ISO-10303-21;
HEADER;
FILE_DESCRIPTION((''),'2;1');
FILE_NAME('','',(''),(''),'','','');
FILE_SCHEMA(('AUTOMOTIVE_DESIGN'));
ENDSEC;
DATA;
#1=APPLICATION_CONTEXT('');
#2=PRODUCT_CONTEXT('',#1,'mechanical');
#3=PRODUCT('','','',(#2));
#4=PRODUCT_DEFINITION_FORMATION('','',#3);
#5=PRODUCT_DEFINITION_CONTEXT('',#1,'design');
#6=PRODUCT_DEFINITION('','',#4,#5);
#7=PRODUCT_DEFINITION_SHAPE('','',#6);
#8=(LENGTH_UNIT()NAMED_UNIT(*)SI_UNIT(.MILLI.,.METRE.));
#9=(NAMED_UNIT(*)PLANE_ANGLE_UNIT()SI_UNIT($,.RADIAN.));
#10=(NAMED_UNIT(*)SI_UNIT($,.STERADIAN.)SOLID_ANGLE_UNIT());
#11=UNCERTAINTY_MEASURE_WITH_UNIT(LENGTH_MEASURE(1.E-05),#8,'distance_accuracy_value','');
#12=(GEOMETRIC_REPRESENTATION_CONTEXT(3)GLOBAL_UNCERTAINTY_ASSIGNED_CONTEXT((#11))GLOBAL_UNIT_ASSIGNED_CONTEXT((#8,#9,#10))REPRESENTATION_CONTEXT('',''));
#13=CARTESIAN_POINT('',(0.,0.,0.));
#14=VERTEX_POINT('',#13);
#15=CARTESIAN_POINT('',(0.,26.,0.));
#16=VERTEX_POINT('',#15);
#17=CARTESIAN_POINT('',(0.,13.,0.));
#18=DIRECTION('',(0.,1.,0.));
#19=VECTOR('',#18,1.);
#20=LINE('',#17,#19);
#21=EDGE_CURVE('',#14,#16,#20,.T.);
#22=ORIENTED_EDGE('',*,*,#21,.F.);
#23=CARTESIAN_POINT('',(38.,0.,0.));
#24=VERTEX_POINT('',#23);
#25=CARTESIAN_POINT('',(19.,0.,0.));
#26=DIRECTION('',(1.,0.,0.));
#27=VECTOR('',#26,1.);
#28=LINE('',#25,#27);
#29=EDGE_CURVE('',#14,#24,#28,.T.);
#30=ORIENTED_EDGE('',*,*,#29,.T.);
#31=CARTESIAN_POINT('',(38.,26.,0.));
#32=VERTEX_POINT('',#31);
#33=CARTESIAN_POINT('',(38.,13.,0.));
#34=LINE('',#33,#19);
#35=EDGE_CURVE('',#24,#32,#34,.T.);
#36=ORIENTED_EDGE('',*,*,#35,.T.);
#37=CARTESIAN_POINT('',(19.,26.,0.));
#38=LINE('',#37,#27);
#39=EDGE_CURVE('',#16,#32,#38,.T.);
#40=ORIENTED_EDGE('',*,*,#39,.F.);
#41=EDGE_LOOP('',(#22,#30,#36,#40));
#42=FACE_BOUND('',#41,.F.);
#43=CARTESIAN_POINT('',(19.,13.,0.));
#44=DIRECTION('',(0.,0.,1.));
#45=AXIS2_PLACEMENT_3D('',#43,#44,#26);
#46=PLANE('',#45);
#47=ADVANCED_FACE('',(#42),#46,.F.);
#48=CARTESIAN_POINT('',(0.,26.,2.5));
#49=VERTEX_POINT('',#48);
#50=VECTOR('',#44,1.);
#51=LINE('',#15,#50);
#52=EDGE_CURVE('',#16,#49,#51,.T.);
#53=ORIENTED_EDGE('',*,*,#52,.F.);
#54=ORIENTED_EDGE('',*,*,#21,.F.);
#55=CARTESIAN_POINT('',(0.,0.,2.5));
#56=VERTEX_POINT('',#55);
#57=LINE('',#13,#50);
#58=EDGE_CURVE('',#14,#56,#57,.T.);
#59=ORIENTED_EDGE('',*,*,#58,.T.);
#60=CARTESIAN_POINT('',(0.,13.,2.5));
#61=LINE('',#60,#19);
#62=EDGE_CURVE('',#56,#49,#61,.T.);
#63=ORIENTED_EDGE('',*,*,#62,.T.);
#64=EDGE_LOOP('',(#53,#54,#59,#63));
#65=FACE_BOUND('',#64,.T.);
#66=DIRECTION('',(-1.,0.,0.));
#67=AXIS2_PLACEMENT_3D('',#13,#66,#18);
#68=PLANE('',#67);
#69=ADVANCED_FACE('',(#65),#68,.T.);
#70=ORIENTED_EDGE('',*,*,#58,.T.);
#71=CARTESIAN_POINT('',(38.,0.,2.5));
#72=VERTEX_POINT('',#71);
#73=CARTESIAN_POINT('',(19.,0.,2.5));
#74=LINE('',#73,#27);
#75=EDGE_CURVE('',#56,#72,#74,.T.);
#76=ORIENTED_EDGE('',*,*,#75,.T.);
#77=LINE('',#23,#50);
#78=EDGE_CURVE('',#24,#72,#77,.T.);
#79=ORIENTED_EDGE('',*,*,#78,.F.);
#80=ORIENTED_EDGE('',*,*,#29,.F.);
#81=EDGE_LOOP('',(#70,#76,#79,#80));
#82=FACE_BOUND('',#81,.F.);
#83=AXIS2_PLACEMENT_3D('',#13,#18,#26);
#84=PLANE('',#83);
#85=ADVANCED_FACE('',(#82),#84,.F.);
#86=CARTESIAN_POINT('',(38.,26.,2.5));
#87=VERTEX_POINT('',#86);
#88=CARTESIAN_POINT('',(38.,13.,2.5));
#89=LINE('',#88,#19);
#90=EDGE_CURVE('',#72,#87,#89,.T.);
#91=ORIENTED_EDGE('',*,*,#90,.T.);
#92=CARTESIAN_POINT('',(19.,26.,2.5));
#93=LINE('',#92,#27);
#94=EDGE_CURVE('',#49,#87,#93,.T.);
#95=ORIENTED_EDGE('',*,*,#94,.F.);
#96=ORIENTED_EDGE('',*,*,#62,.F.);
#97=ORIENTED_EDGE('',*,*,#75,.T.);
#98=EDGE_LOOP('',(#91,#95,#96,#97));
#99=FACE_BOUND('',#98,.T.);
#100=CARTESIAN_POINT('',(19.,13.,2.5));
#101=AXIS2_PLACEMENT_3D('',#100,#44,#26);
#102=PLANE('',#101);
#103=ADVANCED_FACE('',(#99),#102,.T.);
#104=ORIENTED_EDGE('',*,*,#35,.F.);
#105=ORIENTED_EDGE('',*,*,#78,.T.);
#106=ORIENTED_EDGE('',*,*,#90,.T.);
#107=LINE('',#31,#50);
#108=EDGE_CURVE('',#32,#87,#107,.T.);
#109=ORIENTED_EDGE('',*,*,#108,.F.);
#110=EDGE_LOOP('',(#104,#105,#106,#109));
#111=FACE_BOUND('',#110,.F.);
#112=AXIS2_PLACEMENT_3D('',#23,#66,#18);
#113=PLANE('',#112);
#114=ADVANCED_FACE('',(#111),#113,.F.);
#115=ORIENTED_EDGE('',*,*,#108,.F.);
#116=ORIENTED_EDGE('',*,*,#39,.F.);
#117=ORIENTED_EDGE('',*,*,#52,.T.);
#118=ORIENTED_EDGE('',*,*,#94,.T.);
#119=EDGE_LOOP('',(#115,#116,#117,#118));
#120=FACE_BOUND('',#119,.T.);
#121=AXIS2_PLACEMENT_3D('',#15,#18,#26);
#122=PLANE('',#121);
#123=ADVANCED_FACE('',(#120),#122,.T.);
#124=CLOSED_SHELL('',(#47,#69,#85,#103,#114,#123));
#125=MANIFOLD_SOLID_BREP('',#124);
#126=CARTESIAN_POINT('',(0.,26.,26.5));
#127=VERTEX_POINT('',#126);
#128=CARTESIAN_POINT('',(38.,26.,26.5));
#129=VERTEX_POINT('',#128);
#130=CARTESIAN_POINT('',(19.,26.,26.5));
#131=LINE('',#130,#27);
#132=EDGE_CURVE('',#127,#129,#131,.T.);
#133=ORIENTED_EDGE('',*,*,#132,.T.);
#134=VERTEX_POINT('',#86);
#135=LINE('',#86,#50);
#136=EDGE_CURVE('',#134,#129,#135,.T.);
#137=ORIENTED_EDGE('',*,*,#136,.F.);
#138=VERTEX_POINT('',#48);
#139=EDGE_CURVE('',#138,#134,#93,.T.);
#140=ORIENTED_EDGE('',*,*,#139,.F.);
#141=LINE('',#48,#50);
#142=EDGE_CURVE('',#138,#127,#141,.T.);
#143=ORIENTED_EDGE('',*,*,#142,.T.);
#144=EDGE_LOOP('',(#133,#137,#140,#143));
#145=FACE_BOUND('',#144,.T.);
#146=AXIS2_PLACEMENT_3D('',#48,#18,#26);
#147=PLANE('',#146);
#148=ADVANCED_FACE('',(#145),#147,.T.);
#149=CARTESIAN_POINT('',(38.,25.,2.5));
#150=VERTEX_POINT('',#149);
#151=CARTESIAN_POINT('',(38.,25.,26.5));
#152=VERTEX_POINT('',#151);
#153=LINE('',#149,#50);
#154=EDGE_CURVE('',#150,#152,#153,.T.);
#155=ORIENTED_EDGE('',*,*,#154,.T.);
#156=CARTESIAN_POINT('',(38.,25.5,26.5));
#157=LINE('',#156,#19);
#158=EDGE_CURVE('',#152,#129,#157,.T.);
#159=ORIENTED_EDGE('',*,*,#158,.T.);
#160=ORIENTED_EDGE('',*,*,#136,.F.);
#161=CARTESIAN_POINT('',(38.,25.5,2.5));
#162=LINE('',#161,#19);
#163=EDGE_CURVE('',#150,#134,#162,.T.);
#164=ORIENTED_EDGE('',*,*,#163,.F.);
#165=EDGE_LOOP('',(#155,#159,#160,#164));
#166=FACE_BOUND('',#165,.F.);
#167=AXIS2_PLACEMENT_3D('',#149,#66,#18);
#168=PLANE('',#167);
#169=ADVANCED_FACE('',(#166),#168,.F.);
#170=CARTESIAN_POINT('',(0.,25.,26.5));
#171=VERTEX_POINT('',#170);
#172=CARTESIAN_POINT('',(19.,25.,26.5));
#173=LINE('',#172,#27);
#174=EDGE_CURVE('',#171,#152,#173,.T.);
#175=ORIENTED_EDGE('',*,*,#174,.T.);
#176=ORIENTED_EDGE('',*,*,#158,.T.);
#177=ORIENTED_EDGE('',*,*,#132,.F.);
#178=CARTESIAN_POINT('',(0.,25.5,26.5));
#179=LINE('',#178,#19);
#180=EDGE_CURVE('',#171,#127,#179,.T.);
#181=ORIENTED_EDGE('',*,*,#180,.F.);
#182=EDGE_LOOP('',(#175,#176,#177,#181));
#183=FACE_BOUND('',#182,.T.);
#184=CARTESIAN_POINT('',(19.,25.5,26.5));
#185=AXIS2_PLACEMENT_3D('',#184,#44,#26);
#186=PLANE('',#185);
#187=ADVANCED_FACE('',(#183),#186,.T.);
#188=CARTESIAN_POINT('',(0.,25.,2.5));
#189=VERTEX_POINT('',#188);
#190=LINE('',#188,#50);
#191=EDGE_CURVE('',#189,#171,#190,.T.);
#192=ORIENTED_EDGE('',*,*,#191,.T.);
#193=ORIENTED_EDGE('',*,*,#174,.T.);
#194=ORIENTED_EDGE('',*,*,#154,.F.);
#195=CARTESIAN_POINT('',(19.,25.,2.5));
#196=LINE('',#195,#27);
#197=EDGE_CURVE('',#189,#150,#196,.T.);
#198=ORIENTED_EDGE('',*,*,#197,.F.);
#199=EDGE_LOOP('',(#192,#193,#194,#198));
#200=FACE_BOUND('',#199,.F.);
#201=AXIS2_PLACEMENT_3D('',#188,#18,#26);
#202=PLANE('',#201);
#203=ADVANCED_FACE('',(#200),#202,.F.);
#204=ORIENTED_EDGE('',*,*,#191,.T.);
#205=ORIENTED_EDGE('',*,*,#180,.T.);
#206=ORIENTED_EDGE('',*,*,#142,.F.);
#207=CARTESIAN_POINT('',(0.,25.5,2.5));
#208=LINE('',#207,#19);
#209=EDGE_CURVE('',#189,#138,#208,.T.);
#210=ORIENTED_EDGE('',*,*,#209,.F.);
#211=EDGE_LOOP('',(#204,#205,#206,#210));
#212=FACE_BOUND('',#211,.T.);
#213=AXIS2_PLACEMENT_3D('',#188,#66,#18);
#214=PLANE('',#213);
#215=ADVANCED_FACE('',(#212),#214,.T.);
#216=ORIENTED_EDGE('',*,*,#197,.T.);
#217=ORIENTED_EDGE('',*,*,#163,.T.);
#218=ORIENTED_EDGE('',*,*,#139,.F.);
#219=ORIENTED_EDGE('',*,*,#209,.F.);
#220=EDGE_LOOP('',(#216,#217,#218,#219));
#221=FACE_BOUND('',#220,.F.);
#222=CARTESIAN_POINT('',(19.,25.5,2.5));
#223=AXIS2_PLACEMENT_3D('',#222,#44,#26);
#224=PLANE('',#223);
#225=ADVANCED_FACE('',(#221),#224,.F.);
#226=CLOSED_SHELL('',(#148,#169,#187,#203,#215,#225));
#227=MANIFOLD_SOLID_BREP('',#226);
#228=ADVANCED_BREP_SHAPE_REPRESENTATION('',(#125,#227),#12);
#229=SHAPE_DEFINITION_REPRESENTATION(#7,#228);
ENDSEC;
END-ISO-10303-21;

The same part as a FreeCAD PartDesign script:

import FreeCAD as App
import Part
import Sketcher

V = App.Vector

doc = App.newDocument("Part")
body = doc.addObject("PartDesign::Body", "Body")

# Sketch on XY plane
sketch1 = doc.addObject("Sketcher::SketchObject", "Sketch")
body.addObject(sketch1)
sketch1.AttachmentSupport = (doc.XY_Plane, [""])
sketch1.MapMode = "FlatFace"
sketch1.addGeometry(Part.LineSegment(V(0, 26, 0), V(0, 0, 0)), False)
sketch1.addGeometry(Part.LineSegment(V(0, 0, 0), V(38, 0, 0)), False)
sketch1.addGeometry(Part.LineSegment(V(38, 0, 0), V(38, 26, 0)), False)
sketch1.addGeometry(Part.LineSegment(V(38, 26, 0), V(0, 26, 0)), False)
sketch1.addConstraint(Sketcher.Constraint("Coincident", 0, 2, 1, 1))
sketch1.addConstraint(Sketcher.Constraint("Coincident", 1, 2, 2, 1))
sketch1.addConstraint(Sketcher.Constraint("Coincident", 2, 2, 3, 1))
sketch1.addConstraint(Sketcher.Constraint("Coincident", 3, 2, 0, 1))
sketch1.addConstraint(Sketcher.Constraint("Vertical", 0))
sketch1.addConstraint(Sketcher.Constraint("Horizontal", 1))
sketch1.addConstraint(Sketcher.Constraint("Vertical", 2))
sketch1.addConstraint(Sketcher.Constraint("Horizontal", 3))
sketch1.addConstraint(Sketcher.Constraint("Coincident", 0, 2, -1, 1))
sketch1.addConstraint(Sketcher.Constraint("DistanceX", 1, 1, 1, 2, 38.0))
sketch1.addConstraint(Sketcher.Constraint("DistanceY", 0, 2, 0, 1, 26.0))
pad1 = doc.addObject("PartDesign::Pad", "Pad")
body.addObject(pad1)
pad1.Profile = sketch1
pad1.Length = 2.5
body2 = doc.addObject("PartDesign::Body", "Body001")

# Sketch on XY plane
sketch2 = doc.addObject("Sketcher::SketchObject", "Sketch001")
body2.addObject(sketch2)
sketch2.AttachmentSupport = (doc.getObject("XY_Plane001"), [""])
sketch2.MapMode = "FlatFace"
sketch2.AttachmentOffset = App.Placement(V(0, 0, 2.5), App.Rotation())
sketch2.addGeometry(Part.LineSegment(V(0, 26, 0), V(0, 25, 0)), False)
sketch2.addGeometry(Part.LineSegment(V(0, 25, 0), V(38, 25, 0)), False)
sketch2.addGeometry(Part.LineSegment(V(38, 25, 0), V(38, 26, 0)), False)
sketch2.addGeometry(Part.LineSegment(V(38, 26, 0), V(0, 26, 0)), False)
sketch2.addConstraint(Sketcher.Constraint("Coincident", 0, 2, 1, 1))
sketch2.addConstraint(Sketcher.Constraint("Coincident", 1, 2, 2, 1))
sketch2.addConstraint(Sketcher.Constraint("Coincident", 2, 2, 3, 1))
sketch2.addConstraint(Sketcher.Constraint("Coincident", 3, 2, 0, 1))
sketch2.addConstraint(Sketcher.Constraint("Vertical", 0))
sketch2.addConstraint(Sketcher.Constraint("Horizontal", 1))
sketch2.addConstraint(Sketcher.Constraint("Vertical", 2))
sketch2.addConstraint(Sketcher.Constraint("Horizontal", 3))
sketch2.addConstraint(Sketcher.Constraint("PointOnObject", 0, 2, -2))
sketch2.addConstraint(Sketcher.Constraint("DistanceX", 1, 1, 1, 2, 38.0))
sketch2.addConstraint(Sketcher.Constraint("DistanceY", 0, 2, 0, 1, 1.0))
sketch2.addConstraint(Sketcher.Constraint("DistanceY", -1, 1, 0, 2, 25.0))
pad2 = doc.addObject("PartDesign::Pad", "Pad001")
body2.addObject(pad2)
pad2.Profile = sketch2
pad2.Length = 24

doc.recompute()
